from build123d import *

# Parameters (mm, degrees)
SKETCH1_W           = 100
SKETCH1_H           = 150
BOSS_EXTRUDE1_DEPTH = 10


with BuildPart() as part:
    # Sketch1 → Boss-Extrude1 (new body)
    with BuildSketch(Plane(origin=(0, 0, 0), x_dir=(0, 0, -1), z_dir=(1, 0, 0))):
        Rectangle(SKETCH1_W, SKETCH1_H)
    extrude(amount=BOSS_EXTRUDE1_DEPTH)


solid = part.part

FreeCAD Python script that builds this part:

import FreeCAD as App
import Part
import Sketcher
from FreeCAD import Vector

doc = App.newDocument("Part")
body = doc.addObject("PartDesign::Body", "Body")

# Sketch on YZ plane
sketch1 = doc.addObject("Sketcher::SketchObject", "Sketch")
body.addObject(sketch1)
sketch1.AttachmentSupport = (doc.YZ_Plane, [""])
sketch1.MapMode = "FlatFace"
sketch1.addGeometry(Part.LineSegment(Vector(75, 50, 0), Vector(-75, 50, 0)), False)
sketch1.addGeometry(Part.LineSegment(Vector(-75, 50, 0), Vector(-75, -50, 0)), False)
sketch1.addGeometry(Part.LineSegment(Vector(-75, -50, 0), Vector(75, -50, 0)), False)
sketch1.addGeometry(Part.LineSegment(Vector(75, -50, 0), Vector(75, 50, 0)), False)
sketch1.addConstraint(Sketcher.Constraint("Coincident", 0, 2, 1, 1))
sketch1.addConstraint(Sketcher.Constraint("Coincident", 1, 2, 2, 1))
sketch1.addConstraint(Sketcher.Constraint("Coincident", 2, 2, 3, 1))
sketch1.addConstraint(Sketcher.Constraint("Coincident", 3, 2, 0, 1))
sketch1.addConstraint(Sketcher.Constraint("Horizontal", 0))
sketch1.addConstraint(Sketcher.Constraint("Vertical", 1))
sketch1.addConstraint(Sketcher.Constraint("Horizontal", 2))
sketch1.addConstraint(Sketcher.Constraint("Vertical", 3))
sketch1.addConstraint(Sketcher.Constraint("Symmetric", 0, 2, 2, 2, -1, 1))
sketch1.addConstraint(Sketcher.Constraint("DistanceX", 0, 2, 0, 1, 150.0))
sketch1.addConstraint(Sketcher.Constraint("DistanceY", 1, 2, 1, 1, 100.0))
pad1 = doc.addObject("PartDesign::Pad", "Pad")
body.addObject(pad1)
pad1.Profile = sketch1
pad1.Length = 10

doc.recompute()
